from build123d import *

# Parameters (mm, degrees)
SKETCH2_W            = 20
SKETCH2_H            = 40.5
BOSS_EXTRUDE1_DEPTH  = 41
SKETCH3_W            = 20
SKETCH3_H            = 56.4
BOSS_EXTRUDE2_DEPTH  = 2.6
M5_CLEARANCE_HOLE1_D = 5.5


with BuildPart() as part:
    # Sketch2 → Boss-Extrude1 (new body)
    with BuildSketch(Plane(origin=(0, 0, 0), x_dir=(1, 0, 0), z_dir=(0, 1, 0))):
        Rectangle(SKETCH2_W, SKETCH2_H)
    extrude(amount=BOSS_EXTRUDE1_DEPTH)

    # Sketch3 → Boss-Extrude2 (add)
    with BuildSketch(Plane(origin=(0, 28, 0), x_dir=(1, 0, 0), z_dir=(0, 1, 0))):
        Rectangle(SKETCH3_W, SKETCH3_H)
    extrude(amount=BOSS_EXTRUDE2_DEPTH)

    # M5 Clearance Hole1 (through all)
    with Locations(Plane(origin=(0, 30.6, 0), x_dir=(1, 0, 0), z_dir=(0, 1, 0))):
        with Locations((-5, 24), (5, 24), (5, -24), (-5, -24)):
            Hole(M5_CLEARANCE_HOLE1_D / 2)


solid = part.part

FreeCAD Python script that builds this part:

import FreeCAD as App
import Part
import Sketcher
from FreeCAD import Vector

doc = App.newDocument("Part")
params = doc.addObject("Spreadsheet::Sheet", "Params")
for row, (alias, value) in enumerate([
    ("sketch1_width", "20 mm"),
    ("sketch1_height", "40.5 mm"),
    ("pad1_length", "41 mm"),
    ("sketch2_width", "20 mm"),
    ("sketch2_height", "56.4 mm"),
    ("pad2_length", "2.6 mm"),
    ("sketch3_diameter", "5.5 mm"),
    ("hole_diameter", "5.5 mm"),
], start=1):
    params.set(f"A{row}", alias)
    params.set(f"B{row}", "=" + value)
    params.setAlias(f"B{row}", alias)

body = doc.addObject("PartDesign::Body", "Body")

# Sketch on XZ plane
sketch1 = body.newObject("Sketcher::SketchObject", "Sketch")
sketch1.AttachmentSupport = (doc.getObject("XZ_Plane"), [""])
sketch1.MapMode = "FlatFace"
sketch1.addGeometry([
    Part.LineSegment(Vector(-10, -20, 0), Vector(-10, 20, 0)),
    Part.LineSegment(Vector(-10, 20, 0), Vector(10, 20, 0)),
    Part.LineSegment(Vector(10, 20, 0), Vector(10, -20, 0)),
    Part.LineSegment(Vector(10, -20, 0), Vector(-10, -20, 0)),
], False)
sketch1.addConstraint([
    Sketcher.Constraint("Coincident", 0, 2, 1, 1),
    Sketcher.Constraint("Coincident", 1, 2, 2, 1),
    Sketcher.Constraint("Coincident", 2, 2, 3, 1),
    Sketcher.Constraint("Coincident", 3, 2, 0, 1),
    Sketcher.Constraint("Vertical", 0),
    Sketcher.Constraint("Horizontal", 1),
    Sketcher.Constraint("Vertical", 2),
    Sketcher.Constraint("Horizontal", 3),
    Sketcher.Constraint("Symmetric", 0, 2, 2, 2, -1, 1),
    Sketcher.Constraint("DistanceX", 1, 1, 1, 2, 20.0),
    Sketcher.Constraint("DistanceY", 0, 1, 0, 2, 40.5),
])
sketch1.setExpression("Constraints[9]", "Params.sketch1_width")
sketch1.setExpression("Constraints[10]", "Params.sketch1_height")
pad1 = body.newObject("PartDesign::Pad", "Pad")
pad1.Profile = sketch1
pad1.setExpression("Length", "Params.pad1_length")
pad1.Reversed = True

# Sketch on XZ plane
sketch2 = body.newObject("Sketcher::SketchObject", "Sketch001")
sketch2.AttachmentSupport = (doc.getObject("XZ_Plane"), [""])
sketch2.MapMode = "FlatFace"
sketch2.AttachmentOffset = App.Placement(Vector(0, 0, -28), App.Rotation())
sketch2.addGeometry([
    Part.LineSegment(Vector(-10, -28, 0), Vector(-10, 28, 0)),
    Part.LineSegment(Vector(-10, 28, 0), Vector(10, 28, 0)),
    Part.LineSegment(Vector(10, 28, 0), Vector(10, -28, 0)),
    Part.LineSegment(Vector(10, -28, 0), Vector(-10, -28, 0)),
], False)
sketch2.addConstraint([
    Sketcher.Constraint("Coincident", 0, 2, 1, 1),
    Sketcher.Constraint("Coincident", 1, 2, 2, 1),
    Sketcher.Constraint("Coincident", 2, 2, 3, 1),
    Sketcher.Constraint("Coincident", 3, 2, 0, 1),
    Sketcher.Constraint("Vertical", 0),
    Sketcher.Constraint("Horizontal", 1),
    Sketcher.Constraint("Vertical", 2),
    Sketcher.Constraint("Horizontal", 3),
    Sketcher.Constraint("Symmetric", 0, 2, 2, 2, -1, 1),
    Sketcher.Constraint("DistanceX", 1, 1, 1, 2, 20.0),
    Sketcher.Constraint("DistanceY", 0, 1, 0, 2, 56.4),
])
sketch2.setExpression("Constraints[9]", "Params.sketch2_width")
sketch2.setExpression("Constraints[10]", "Params.sketch2_height")
pad2 = body.newObject("PartDesign::Pad", "Pad001")
pad2.Profile = sketch2
pad2.setExpression("Length", "Params.pad2_length")
pad2.Reversed = True

# Sketch on XZ plane
sketch3 = body.newObject("Sketcher::SketchObject", "Sketch002")
sketch3.AttachmentSupport = (doc.getObject("XZ_Plane"), [""])
sketch3.MapMode = "FlatFace"
sketch3.AttachmentOffset = App.Placement(Vector(0, 0, -30.6), App.Rotation())
sketch3.addGeometry([
    Part.Circle(Vector(-5, -24, 0), Vector(0, 0, 1), 2.8),
    Part.Circle(Vector(5, -24, 0), Vector(0, 0, 1), 2.8),
    Part.Circle(Vector(5, 24, 0), Vector(0, 0, 1), 2.8),
    Part.Circle(Vector(-5, 24, 0), Vector(0, 0, 1), 2.8),
], False)
sketch3.addConstraint([
    Sketcher.Constraint("Equal", 0, 1),
    Sketcher.Constraint("Equal", 1, 2),
    Sketcher.Constraint("Equal", 2, 3),
    Sketcher.Constraint("Symmetric", 0, 3, 2, 3, -1, 1),
    Sketcher.Constraint("Symmetric", 1, 3, 3, 3, -1, 1),
    Sketcher.Constraint("Symmetric", 0, 3, 1, 3, -2),
    Sketcher.Constraint("Diameter", 0, 5.5),
    Sketcher.Constraint("DistanceX", 0, 3, -1, 1, 5.0),
    Sketcher.Constraint("DistanceY", 0, 3, -1, 1, 24.0),
])
sketch3.setExpression("Constraints[6]", "Params.sketch3_diameter")
doc.recompute()
hole = body.newObject("PartDesign::Hole", "Hole")
hole.Profile = sketch3
hole.ThreadType = "None"
hole.setExpression("Diameter", "Params.hole_diameter")
hole.DepthType = "ThroughAll"
hole.Reversed = True

doc.recompute()
